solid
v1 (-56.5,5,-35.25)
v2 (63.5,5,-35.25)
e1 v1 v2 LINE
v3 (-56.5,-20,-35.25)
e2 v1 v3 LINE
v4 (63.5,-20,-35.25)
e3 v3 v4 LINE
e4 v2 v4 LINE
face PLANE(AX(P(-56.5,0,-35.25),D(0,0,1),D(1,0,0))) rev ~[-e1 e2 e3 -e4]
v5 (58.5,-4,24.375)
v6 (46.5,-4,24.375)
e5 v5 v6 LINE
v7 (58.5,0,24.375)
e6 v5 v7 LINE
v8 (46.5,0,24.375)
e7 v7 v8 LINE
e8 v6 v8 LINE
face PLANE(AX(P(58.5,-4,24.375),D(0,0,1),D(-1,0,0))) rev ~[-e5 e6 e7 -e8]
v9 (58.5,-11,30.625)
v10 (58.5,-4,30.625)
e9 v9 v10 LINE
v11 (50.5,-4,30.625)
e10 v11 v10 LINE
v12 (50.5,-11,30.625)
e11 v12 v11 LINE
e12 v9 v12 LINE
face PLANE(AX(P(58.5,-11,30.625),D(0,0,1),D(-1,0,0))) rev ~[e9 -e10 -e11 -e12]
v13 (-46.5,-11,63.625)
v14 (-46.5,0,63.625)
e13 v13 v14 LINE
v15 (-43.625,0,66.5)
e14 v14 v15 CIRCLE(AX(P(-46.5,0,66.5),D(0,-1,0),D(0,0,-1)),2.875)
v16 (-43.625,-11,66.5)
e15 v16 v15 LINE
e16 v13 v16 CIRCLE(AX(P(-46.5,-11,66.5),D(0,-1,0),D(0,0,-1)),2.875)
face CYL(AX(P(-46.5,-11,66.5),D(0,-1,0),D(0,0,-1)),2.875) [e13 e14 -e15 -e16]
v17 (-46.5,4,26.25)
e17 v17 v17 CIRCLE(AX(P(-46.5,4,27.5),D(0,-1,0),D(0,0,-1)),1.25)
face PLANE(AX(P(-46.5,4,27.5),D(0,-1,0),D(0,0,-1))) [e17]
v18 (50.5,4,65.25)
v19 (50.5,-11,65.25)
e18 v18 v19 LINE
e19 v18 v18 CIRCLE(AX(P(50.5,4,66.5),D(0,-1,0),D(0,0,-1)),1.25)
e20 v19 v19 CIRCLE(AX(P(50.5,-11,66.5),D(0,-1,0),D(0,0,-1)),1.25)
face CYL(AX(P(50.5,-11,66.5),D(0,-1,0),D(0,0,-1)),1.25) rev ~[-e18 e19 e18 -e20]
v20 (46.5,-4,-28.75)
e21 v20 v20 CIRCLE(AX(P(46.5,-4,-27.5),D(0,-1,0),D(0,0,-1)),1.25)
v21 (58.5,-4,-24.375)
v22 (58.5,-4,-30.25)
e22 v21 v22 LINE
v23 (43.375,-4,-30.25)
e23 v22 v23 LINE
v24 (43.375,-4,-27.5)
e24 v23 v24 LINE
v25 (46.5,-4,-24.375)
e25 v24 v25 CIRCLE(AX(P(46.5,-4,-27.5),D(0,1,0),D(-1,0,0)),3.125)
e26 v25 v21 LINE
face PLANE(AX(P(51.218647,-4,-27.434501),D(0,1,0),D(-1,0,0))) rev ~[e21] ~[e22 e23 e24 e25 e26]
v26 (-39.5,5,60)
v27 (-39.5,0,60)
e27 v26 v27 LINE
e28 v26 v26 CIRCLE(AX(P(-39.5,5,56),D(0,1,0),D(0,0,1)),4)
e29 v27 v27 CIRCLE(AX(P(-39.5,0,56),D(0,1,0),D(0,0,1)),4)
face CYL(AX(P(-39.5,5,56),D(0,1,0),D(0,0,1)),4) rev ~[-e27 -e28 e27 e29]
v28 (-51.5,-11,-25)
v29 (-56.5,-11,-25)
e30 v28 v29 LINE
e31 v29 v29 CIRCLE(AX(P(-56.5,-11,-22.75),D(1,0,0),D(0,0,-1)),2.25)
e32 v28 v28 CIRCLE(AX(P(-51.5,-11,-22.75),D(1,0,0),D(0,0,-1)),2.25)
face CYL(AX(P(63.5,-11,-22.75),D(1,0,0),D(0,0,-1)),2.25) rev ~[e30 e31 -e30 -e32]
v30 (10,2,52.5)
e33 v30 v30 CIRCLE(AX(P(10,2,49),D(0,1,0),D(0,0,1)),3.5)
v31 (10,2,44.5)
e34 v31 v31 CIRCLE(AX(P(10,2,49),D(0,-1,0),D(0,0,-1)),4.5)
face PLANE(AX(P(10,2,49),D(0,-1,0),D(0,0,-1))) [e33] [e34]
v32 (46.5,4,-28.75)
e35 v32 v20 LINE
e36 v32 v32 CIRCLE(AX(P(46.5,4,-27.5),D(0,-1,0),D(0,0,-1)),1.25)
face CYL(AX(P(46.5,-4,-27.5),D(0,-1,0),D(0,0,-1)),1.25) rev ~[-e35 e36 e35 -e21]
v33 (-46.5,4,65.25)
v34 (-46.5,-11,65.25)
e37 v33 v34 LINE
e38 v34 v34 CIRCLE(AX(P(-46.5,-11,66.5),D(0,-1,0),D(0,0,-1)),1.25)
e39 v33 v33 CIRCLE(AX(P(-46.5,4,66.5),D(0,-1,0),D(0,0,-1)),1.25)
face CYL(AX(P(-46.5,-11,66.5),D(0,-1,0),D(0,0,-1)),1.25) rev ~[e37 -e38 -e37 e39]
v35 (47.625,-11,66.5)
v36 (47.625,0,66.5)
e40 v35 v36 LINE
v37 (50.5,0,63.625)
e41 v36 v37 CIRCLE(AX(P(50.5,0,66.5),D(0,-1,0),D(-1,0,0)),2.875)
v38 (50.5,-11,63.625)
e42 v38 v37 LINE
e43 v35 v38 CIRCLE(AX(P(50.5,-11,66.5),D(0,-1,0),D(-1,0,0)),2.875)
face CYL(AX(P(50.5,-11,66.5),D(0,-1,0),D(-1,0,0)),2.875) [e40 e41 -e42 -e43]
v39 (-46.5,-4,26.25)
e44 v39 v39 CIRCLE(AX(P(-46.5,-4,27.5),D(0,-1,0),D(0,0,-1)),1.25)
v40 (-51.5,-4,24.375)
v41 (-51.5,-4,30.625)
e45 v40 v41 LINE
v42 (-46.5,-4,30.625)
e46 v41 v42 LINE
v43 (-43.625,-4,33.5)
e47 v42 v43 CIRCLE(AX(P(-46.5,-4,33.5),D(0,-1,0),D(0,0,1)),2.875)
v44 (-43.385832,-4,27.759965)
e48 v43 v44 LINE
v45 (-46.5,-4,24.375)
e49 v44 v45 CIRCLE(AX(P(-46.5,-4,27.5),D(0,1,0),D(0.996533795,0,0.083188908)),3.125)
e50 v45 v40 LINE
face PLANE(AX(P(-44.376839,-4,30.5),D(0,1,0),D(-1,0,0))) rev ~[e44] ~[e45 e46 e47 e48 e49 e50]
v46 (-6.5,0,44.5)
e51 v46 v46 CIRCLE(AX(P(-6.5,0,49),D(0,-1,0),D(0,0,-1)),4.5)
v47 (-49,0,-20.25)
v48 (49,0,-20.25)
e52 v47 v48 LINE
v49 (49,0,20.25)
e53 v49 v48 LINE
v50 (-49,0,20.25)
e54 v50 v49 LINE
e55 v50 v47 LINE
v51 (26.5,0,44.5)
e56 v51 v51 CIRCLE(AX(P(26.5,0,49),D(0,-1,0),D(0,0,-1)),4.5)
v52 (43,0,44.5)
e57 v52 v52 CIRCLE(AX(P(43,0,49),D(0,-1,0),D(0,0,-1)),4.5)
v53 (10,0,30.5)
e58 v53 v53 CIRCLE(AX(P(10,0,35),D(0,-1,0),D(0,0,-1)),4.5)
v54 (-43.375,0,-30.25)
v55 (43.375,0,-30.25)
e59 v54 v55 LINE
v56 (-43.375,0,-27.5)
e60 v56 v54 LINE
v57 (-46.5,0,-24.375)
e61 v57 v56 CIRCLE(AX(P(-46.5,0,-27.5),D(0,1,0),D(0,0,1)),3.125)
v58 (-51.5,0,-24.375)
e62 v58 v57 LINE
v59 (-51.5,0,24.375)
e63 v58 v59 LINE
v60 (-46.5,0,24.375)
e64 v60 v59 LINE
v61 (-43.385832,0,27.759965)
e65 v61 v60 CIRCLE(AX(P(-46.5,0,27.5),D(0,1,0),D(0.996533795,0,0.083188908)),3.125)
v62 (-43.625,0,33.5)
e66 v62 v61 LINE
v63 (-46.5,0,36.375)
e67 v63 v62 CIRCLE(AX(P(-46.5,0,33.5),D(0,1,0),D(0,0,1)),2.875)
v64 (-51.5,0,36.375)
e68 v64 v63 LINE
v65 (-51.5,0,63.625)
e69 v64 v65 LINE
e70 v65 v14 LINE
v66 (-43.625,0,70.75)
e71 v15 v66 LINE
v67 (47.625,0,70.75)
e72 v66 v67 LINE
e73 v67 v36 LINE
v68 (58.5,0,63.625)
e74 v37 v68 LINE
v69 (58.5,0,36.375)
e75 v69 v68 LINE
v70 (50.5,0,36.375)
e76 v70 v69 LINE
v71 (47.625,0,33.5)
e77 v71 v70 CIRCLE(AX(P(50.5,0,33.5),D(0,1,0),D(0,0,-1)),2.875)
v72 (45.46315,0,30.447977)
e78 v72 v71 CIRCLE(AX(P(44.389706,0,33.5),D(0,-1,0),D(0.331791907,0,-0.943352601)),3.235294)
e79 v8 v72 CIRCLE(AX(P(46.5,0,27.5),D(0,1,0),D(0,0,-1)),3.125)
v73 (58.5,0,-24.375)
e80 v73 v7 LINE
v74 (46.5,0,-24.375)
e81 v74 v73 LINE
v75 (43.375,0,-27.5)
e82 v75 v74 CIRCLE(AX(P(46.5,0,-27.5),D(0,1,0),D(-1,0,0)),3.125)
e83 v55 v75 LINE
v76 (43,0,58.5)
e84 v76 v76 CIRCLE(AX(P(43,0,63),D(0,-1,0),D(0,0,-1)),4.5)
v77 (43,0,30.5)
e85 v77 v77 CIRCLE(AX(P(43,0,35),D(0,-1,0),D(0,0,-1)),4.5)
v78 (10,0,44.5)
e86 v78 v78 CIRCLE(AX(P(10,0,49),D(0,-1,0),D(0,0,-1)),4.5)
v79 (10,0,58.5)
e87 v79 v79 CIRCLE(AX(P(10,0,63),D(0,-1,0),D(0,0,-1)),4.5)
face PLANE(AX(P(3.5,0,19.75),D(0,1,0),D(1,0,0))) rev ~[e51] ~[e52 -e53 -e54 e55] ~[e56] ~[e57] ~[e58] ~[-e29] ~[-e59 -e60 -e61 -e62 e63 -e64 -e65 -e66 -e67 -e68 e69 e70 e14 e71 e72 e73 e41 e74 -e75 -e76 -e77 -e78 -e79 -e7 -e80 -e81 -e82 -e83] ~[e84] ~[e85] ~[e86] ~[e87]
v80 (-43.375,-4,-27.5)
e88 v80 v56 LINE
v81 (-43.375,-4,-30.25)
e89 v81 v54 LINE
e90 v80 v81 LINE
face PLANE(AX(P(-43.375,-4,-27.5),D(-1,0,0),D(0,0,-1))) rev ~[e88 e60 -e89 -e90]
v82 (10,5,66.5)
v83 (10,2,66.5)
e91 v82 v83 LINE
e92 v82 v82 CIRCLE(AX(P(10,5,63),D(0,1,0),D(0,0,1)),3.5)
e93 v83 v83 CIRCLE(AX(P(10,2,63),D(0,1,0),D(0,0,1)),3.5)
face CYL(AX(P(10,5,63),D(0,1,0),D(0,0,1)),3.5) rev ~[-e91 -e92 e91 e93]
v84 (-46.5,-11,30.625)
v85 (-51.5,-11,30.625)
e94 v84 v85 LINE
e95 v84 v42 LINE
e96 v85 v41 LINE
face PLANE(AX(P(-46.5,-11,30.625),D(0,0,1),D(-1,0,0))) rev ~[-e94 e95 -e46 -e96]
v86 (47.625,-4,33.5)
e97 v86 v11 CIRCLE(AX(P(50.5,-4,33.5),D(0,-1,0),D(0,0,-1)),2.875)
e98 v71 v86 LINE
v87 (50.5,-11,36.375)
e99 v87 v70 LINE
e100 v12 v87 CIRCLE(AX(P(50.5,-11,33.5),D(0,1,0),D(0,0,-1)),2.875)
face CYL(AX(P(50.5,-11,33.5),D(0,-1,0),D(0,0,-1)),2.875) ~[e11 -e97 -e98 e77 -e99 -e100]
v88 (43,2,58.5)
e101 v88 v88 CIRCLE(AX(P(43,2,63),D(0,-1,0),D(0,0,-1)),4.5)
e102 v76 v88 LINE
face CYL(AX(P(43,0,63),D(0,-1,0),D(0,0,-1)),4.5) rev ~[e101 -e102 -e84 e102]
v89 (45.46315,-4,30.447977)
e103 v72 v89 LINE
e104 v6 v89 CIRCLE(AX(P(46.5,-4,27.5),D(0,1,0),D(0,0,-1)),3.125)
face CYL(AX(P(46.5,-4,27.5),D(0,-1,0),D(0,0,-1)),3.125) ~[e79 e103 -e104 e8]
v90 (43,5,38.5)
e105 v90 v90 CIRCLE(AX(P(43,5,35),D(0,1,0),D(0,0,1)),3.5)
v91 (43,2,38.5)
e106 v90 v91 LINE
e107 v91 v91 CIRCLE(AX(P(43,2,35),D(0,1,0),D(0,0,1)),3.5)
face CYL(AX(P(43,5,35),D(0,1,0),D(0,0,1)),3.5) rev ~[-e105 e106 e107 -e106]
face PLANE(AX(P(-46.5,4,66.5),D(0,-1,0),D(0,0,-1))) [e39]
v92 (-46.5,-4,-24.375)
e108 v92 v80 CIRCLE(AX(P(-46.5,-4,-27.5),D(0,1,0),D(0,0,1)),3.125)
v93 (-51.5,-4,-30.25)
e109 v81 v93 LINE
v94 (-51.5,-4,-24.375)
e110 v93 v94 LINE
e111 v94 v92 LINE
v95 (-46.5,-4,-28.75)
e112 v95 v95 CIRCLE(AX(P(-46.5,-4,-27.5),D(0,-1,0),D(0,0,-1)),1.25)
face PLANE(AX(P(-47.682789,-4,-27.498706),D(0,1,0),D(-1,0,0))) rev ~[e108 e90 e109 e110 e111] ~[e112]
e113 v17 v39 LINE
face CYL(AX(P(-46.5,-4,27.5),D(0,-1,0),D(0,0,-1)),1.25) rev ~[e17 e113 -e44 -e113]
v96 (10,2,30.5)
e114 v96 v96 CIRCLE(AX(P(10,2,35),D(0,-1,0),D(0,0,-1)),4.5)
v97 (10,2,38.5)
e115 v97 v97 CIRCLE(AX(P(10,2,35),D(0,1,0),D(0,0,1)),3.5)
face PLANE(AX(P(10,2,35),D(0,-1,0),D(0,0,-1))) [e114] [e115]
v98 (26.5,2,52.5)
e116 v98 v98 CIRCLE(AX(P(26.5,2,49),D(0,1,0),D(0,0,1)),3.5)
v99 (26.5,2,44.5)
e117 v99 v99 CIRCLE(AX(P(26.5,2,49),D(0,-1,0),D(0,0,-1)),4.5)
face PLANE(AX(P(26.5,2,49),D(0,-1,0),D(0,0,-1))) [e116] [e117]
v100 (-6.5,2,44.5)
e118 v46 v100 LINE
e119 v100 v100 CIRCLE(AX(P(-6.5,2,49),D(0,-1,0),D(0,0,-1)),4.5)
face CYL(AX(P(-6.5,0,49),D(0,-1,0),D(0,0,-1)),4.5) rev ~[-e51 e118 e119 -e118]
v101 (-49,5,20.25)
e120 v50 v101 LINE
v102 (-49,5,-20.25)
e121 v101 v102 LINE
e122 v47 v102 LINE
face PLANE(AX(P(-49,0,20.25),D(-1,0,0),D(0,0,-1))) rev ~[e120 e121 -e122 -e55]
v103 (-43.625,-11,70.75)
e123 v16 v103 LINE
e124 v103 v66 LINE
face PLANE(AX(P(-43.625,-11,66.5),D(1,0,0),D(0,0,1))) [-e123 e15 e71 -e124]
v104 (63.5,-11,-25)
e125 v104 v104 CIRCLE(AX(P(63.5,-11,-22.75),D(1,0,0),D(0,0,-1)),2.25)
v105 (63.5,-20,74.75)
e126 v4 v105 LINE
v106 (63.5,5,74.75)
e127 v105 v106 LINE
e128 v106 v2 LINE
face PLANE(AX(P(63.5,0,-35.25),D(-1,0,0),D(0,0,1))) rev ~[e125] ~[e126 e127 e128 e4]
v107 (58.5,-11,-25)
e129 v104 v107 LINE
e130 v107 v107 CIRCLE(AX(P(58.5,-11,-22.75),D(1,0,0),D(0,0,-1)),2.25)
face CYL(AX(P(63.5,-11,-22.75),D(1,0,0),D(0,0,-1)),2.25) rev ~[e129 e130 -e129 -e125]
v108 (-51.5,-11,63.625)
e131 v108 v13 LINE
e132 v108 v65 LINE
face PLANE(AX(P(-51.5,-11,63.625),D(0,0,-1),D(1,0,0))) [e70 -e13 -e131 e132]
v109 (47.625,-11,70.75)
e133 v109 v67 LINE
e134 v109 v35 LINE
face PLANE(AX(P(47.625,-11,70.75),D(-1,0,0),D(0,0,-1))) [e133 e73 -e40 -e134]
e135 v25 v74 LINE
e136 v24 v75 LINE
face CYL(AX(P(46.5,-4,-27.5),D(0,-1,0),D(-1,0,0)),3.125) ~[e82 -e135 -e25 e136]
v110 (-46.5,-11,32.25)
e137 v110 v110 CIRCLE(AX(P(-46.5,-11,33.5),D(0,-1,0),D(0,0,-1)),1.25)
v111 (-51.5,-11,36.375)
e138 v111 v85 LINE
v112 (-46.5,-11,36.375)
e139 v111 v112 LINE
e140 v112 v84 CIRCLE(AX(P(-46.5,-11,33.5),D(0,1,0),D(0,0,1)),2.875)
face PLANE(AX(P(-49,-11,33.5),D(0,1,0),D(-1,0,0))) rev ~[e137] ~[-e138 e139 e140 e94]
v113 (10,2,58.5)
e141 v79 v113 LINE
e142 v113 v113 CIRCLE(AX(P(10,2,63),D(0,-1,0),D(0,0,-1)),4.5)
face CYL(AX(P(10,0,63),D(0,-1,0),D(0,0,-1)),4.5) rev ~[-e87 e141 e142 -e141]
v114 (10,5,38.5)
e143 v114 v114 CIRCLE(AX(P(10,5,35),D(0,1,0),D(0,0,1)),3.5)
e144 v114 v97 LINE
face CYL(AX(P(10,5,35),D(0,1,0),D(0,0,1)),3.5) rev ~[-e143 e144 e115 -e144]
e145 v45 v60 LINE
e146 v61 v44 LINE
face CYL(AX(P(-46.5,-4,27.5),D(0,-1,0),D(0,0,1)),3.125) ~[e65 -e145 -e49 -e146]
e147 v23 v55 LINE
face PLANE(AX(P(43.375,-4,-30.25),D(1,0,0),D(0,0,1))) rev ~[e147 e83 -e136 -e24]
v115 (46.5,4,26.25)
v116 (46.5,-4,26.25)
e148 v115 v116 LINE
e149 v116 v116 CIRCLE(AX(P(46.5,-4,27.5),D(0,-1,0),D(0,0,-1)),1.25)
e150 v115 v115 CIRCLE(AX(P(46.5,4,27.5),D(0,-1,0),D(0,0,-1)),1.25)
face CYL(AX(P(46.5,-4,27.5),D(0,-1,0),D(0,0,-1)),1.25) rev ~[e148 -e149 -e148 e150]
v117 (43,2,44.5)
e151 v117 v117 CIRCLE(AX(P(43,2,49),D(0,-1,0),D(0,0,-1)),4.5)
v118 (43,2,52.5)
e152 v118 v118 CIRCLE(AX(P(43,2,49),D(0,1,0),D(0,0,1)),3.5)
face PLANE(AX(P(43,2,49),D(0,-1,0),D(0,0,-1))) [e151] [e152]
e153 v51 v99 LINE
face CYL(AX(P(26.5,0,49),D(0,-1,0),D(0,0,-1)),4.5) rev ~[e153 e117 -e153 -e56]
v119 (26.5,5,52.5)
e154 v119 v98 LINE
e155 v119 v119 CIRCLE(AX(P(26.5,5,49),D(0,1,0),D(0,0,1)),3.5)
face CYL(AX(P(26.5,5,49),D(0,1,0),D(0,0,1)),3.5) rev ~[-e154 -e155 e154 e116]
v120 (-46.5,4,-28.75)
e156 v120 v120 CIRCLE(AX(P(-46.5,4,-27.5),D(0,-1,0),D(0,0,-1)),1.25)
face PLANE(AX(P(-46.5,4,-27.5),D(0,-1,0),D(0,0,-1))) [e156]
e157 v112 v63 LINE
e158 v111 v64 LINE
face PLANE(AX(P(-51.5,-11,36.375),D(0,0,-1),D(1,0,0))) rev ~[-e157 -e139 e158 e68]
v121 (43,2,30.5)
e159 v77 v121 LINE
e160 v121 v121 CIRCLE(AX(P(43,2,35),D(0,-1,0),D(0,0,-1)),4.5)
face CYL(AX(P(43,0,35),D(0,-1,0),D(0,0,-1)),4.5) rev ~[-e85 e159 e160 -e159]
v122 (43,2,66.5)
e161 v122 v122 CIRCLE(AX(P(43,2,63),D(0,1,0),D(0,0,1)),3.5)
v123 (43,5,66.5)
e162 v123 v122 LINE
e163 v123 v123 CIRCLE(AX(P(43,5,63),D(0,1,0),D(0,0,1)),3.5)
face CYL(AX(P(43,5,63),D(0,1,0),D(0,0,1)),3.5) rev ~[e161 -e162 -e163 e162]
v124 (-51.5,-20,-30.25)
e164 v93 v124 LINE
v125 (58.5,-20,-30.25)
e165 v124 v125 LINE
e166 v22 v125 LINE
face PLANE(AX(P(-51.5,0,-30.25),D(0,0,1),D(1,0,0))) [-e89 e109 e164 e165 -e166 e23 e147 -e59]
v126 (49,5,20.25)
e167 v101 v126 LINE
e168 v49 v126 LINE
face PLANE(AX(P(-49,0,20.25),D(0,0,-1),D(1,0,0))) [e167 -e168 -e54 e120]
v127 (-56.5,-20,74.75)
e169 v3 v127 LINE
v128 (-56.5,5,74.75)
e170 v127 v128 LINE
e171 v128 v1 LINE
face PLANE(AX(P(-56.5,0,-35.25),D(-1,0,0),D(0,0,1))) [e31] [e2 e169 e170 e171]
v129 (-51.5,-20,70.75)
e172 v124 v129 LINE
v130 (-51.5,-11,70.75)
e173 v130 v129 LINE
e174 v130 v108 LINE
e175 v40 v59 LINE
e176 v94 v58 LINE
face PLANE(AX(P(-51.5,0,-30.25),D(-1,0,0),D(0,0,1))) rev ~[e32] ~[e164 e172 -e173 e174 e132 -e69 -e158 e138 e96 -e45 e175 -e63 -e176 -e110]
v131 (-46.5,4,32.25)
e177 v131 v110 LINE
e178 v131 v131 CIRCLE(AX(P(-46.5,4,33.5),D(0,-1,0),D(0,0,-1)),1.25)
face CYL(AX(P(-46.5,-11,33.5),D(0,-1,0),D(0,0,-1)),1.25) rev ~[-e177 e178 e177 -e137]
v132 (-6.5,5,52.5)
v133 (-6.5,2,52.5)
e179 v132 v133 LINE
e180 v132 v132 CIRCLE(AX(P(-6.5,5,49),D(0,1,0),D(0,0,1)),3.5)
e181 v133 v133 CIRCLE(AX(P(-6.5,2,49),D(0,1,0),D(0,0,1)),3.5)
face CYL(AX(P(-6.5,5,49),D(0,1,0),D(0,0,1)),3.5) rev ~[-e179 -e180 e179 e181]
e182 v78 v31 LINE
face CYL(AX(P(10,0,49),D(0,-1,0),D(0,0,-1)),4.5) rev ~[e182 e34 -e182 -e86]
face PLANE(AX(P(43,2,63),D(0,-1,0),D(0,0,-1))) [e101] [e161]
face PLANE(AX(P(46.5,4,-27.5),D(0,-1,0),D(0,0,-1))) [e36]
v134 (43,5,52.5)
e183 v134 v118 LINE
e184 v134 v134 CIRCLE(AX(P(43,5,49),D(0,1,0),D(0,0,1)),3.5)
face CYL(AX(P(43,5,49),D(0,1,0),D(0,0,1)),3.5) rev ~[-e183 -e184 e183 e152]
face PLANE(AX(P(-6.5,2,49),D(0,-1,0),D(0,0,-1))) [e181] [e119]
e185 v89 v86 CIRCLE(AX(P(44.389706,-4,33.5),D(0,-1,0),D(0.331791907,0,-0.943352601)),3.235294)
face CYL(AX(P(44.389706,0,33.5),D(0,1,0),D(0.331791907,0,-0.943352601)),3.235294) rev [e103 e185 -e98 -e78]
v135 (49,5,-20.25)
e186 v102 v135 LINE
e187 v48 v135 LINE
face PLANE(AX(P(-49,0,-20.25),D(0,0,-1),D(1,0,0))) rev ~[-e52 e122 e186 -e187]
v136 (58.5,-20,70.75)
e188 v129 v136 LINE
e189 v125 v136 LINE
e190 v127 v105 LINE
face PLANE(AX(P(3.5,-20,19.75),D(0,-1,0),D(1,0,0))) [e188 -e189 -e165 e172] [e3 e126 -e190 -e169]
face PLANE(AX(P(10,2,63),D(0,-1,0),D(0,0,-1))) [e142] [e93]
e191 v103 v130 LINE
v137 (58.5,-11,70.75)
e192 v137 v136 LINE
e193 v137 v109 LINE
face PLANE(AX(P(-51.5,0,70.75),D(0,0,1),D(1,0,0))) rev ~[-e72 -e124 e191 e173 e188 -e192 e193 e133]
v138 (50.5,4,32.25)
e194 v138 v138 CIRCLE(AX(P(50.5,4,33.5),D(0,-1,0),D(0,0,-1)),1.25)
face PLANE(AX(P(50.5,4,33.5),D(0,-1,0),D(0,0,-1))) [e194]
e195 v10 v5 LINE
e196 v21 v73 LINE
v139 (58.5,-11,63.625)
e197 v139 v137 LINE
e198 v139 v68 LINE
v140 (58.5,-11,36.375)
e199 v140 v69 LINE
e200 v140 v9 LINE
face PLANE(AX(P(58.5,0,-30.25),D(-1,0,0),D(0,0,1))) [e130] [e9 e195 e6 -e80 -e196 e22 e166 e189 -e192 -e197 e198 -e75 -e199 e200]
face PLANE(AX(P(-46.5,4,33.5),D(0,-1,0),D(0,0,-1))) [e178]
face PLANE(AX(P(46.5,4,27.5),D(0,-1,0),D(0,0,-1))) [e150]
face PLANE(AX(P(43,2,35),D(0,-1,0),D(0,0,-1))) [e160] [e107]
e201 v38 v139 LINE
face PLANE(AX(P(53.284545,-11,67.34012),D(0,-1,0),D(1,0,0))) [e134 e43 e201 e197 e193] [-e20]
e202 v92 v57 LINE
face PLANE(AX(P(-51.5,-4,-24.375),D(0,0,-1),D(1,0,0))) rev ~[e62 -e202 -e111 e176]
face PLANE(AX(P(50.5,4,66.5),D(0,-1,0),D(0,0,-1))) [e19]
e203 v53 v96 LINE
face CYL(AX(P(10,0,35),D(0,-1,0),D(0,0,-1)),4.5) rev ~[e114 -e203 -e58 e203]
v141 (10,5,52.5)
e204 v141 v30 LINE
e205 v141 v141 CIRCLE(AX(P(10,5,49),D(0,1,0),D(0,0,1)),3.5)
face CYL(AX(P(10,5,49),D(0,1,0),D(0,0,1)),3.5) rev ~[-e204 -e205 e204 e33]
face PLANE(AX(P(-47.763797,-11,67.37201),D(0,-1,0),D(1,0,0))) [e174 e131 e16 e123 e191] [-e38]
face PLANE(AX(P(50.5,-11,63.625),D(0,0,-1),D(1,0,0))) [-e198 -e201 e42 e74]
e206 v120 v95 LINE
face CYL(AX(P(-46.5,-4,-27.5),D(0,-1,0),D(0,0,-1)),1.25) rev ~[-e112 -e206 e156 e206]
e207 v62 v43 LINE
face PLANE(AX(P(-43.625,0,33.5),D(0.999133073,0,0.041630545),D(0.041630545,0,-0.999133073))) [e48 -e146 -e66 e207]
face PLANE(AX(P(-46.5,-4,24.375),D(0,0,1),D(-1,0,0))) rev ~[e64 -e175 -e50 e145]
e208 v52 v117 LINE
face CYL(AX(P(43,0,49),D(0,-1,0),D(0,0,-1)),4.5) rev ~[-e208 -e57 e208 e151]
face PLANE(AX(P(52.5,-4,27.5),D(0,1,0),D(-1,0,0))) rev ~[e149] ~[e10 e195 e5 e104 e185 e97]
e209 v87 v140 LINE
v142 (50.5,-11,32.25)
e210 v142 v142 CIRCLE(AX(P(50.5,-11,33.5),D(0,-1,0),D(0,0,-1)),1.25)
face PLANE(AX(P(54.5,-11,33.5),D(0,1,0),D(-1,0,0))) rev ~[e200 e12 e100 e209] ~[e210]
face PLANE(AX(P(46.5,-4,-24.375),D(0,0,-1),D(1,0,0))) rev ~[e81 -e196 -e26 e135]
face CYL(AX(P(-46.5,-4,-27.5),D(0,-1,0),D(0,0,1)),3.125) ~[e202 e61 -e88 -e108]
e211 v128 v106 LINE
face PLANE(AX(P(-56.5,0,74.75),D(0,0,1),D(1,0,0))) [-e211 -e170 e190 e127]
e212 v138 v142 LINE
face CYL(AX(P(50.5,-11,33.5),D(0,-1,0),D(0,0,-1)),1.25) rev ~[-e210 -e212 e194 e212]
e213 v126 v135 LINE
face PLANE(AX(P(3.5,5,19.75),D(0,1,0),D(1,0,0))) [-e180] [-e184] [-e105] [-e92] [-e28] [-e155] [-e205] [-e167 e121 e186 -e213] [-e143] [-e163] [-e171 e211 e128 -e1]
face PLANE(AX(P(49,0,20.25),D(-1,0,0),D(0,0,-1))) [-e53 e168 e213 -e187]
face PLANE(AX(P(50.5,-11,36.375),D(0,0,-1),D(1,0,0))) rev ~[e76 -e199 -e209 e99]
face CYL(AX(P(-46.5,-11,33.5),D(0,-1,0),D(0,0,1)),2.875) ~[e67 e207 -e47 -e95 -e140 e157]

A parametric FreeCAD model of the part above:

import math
import FreeCAD as App
import Part
import Sketcher

V = App.Vector


def add_polygon(sketch, points):
    """Adds a closed chain of lines whose ends are joined by coincident constraints."""
    first, n = sketch.GeometryCount, len(points)
    for a, b in zip(points, points[1:] + points[:1]):
        sketch.addGeometry(Part.LineSegment(App.Vector(*a, 0), App.Vector(*b, 0)), False)
    for i in range(n):
        sketch.addConstraint(Sketcher.Constraint("Coincident", first + i, 2, first + (i + 1) % n, 1))

doc = App.newDocument("Part")
params = doc.addObject("Spreadsheet::Sheet", "Params")
for row, (alias, value) in enumerate([
    ("sketch1_width", "120 mm"),
    ("sketch1_width2", "98 mm"),
    ("sketch1_height", "110 mm"),
    ("sketch1_height2", "40.5 mm"),
    ("pad1_length", "5 mm"),
    ("sketch2_diameter", "2.5 mm"),
    ("pocket1_length", "4 mm"),
    ("sketch3_diameter", "7 mm"),
    ("sketch4_diameter", "8 mm"),
    ("sketch5_diameter", "9 mm"),
    ("pocket4_length", "2 mm"),
    ("sketch6_width", "120 mm"),
    ("sketch6_width2", "110 mm"),
    ("sketch6_height", "101 mm"),
    ("pad2_length", "20 mm"),
    ("sketch7_diameter", "4.5 mm"),
    ("sketch8_diameter", "2.5 mm"),
    ("sketch8_width", "5 mm"),
    ("sketch8_width2", "12 mm"),
    ("sketch8_height", "2.75 mm"),
    ("pad3_length", "4 mm"),
    ("sketch9_diameter", "2.5 mm"),
    ("sketch9_width", "5 mm"),
    ("sketch9_width2", "8 mm"),
    ("sketch9_height", "4.25 mm"),
    ("pad4_length", "11 mm"),
    ("pad5_length", "4 mm"),
], start=1):
    params.set(f"A{row}", alias)
    params.set(f"B{row}", "=" + value)
    params.setAlias(f"B{row}", alias)

body = doc.addObject("PartDesign::Body", "Body")

sketch1 = body.newObject("Sketcher::SketchObject", "Sketch")
sketch1.AttachmentSupport = (doc.getObject("XZ_Plane"), [""])
sketch1.MapMode = "FlatFace"
add_polygon(sketch1, [(-56.5, -35.25), (-56.5, 74.75), (63.5, 74.75), (63.5, -35.25)])
add_polygon(sketch1, [(49, 20.25), (-49, 20.25), (-49, -20.25), (49, -20.25)])
sketch1.addConstraint(Sketcher.Constraint("Vertical", 0))
sketch1.addConstraint(Sketcher.Constraint("Horizontal", 1))
sketch1.addConstraint(Sketcher.Constraint("Vertical", 2))
sketch1.addConstraint(Sketcher.Constraint("Horizontal", 3))
sketch1.addConstraint(Sketcher.Constraint("Horizontal", 4))
sketch1.addConstraint(Sketcher.Constraint("Vertical", 5))
sketch1.addConstraint(Sketcher.Constraint("Horizontal", 6))
sketch1.addConstraint(Sketcher.Constraint("Vertical", 7))
sketch1.addConstraint(Sketcher.Constraint("Symmetric", 4, 2, 6, 2, -1, 1))
sketch1.addConstraint(Sketcher.Constraint("DistanceX", 1, 1, 1, 2, 120.0))
sketch1.addConstraint(Sketcher.Constraint("DistanceX", 4, 2, 4, 1, 98.0))
sketch1.addConstraint(Sketcher.Constraint("DistanceY", 0, 1, 0, 2, 110.0))
sketch1.addConstraint(Sketcher.Constraint("DistanceY", 5, 2, 5, 1, 40.5))
sketch1.addConstraint(Sketcher.Constraint("DistanceY", 3, 2, 5, 2, 15.0))
sketch1.addConstraint(Sketcher.Constraint("DistanceX", 0, 2, -1, 1, 56.5))
sketch1.setExpression("Constraints[17]", "Params.sketch1_width")
sketch1.setExpression("Constraints[18]", "Params.sketch1_width2")
sketch1.setExpression("Constraints[19]", "Params.sketch1_height")
sketch1.setExpression("Constraints[20]", "Params.sketch1_height2")
pad1 = body.newObject("PartDesign::Pad", "Pad")
pad1.Profile = sketch1
pad1.setExpression("Length", "Params.pad1_length")
pad1.Reversed = True

sketch2 = body.newObject("Sketcher::SketchObject", "Sketch001")
sketch2.AttachmentSupport = (doc.getObject("XZ_Plane"), [""])
sketch2.MapMode = "FlatFace"
sketch2.addGeometry(Part.Circle(V(-46.5, 27.5, 0), V(0, 0, 1), 1.25), False)
sketch2.addGeometry(Part.Circle(V(46.5, 27.5, 0), V(0, 0, 1), 1.25), False)
sketch2.addGeometry(Part.Circle(V(46.5, -27.5, 0), V(0, 0, 1), 1.25), False)
sketch2.addGeometry(Part.Circle(V(-46.5, -27.5, 0), V(0, 0, 1), 1.25), False)
sketch2.addGeometry(Part.Circle(V(-46.5, 33.5, 0), V(0, 0, 1), 1.25), False)
sketch2.addGeometry(Part.Circle(V(50.5, 33.5, 0), V(0, 0, 1), 1.25), False)
sketch2.addGeometry(Part.Circle(V(50.5, 66.5, 0), V(0, 0, 1), 1.25), False)
sketch2.addGeometry(Part.Circle(V(-46.5, 66.5, 0), V(0, 0, 1), 1.25), False)
sketch2.addConstraint(Sketcher.Constraint("Equal", 0, 1))
sketch2.addConstraint(Sketcher.Constraint("Equal", 1, 2))
sketch2.addConstraint(Sketcher.Constraint("Equal", 2, 3))
sketch2.addConstraint(Sketcher.Constraint("Equal", 3, 4))
sketch2.addConstraint(Sketcher.Constraint("Equal", 4, 5))
sketch2.addConstraint(Sketcher.Constraint("Equal", 5, 6))
sketch2.addConstraint(Sketcher.Constraint("Equal", 6, 7))
sketch2.addConstraint(Sketcher.Constraint("Symmetric", 0, 3, 2, 3, -1, 1))
sketch2.addConstraint(Sketcher.Constraint("Symmetric", 1, 3, 3, 3, -1, 1))
sketch2.addConstraint(Sketcher.Constraint("Symmetric", 0, 3, 1, 3, -2))
sketch2.addConstraint(Sketcher.Constraint("Horizontal", 4, 3, 5, 3))
sketch2.addConstraint(Sketcher.Constraint("Horizontal", 6, 3, 7, 3))
sketch2.addConstraint(Sketcher.Constraint("Vertical", 3, 3, 4, 3))
sketch2.addConstraint(Sketcher.Constraint("Vertical", 5, 3, 6, 3))
sketch2.addConstraint(Sketcher.Constraint("Vertical", 4, 3, 7, 3))
sketch2.addConstraint(Sketcher.Constraint("Diameter", 0, 2.5))
sketch2.addConstraint(Sketcher.Constraint("DistanceX", 0, 3, 1, 3, 93.0))
sketch2.addConstraint(Sketcher.Constraint("DistanceY", 2, 3, 1, 3, 55.0))
sketch2.addConstraint(Sketcher.Constraint("DistanceY", 0, 3, 4, 3, 6.0))
sketch2.addConstraint(Sketcher.Constraint("DistanceX", 1, 3, 5, 3, 4.0))
sketch2.addConstraint(Sketcher.Constraint("DistanceY", 5, 3, 6, 3, 33.0))
sketch2.setExpression("Constraints[15]", "Params.sketch2_diameter")
pocket1 = body.newObject("PartDesign::Pocket", "Pocket")
pocket1.Profile = sketch2
pocket1.setExpression("Length", "Params.pocket1_length")

sketch3 = body.newObject("Sketcher::SketchObject", "Sketch002")
sketch3.AttachmentSupport = (doc.getObject("XZ_Plane"), [""])
sketch3.MapMode = "FlatFace"
sketch3.AttachmentOffset = App.Placement(V(0, 0, -5), App.Rotation())
sketch3.addGeometry(Part.Circle(V(43, 35, 0), V(0, 0, 1), 3.5), False)
sketch3.addGeometry(Part.Circle(V(43, 49, 0), V(0, 0, 1), 3.5), False)
sketch3.addGeometry(Part.Circle(V(43, 63, 0), V(0, 0, 1), 3.5), False)
sketch3.addGeometry(Part.Circle(V(26.5, 49, 0), V(0, 0, 1), 3.5), False)
sketch3.addGeometry(Part.Circle(V(10, 49, 0), V(0, 0, 1), 3.5), False)
sketch3.addGeometry(Part.Circle(V(10, 35, 0), V(0, 0, 1), 3.5), False)
sketch3.addGeometry(Part.Circle(V(10, 63, 0), V(0, 0, 1), 3.5), False)
sketch3.addGeometry(Part.Circle(V(-6.5, 49, 0), V(0, 0, 1), 3.5), False)
sketch3.addConstraint(Sketcher.Constraint("Equal", 0, 1))
sketch3.addConstraint(Sketcher.Constraint("Equal", 1, 2))
sketch3.addConstraint(Sketcher.Constraint("Equal", 2, 3))
sketch3.addConstraint(Sketcher.Constraint("Equal", 3, 4))
sketch3.addConstraint(Sketcher.Constraint("Equal", 4, 5))
sketch3.addConstraint(Sketcher.Constraint("Equal", 5, 6))
sketch3.addConstraint(Sketcher.Constraint("Equal", 6, 7))
sketch3.addConstraint(Sketcher.Constraint("Horizontal", 1, 3, 3, 3))
sketch3.addConstraint(Sketcher.Constraint("Horizontal", 3, 3, 4, 3))
sketch3.addConstraint(Sketcher.Constraint("Horizontal", 0, 3, 5, 3))
sketch3.addConstraint(Sketcher.Constraint("Horizontal", 2, 3, 6, 3))
sketch3.addConstraint(Sketcher.Constraint("Horizontal", 4, 3, 7, 3))
sketch3.addConstraint(Sketcher.Constraint("Vertical", 0, 3, 1, 3))
sketch3.addConstraint(Sketcher.Constraint("Vertical", 1, 3, 2, 3))
sketch3.addConstraint(Sketcher.Constraint("Vertical", 4, 3, 5, 3))
sketch3.addConstraint(Sketcher.Constraint("Vertical", 5, 3, 6, 3))
sketch3.addConstraint(Sketcher.Constraint("Diameter", 0, 7.0))
sketch3.addConstraint(Sketcher.Constraint("DistanceX", -1, 1, 0, 3, 43.0))
sketch3.addConstraint(Sketcher.Constraint("DistanceY", -1, 1, 0, 3, 35.0))
sketch3.addConstraint(Sketcher.Constraint("DistanceY", -1, 1, 1, 3, 49.0))
sketch3.addConstraint(Sketcher.Constraint("DistanceY", -1, 1, 2, 3, 63.0))
sketch3.addConstraint(Sketcher.Constraint("DistanceX", -1, 1, 4, 3, 10.0))
sketch3.addConstraint(Sketcher.Constraint("DistanceX", 7, 3, 3, 3, 33.0))
sketch3.addConstraint(Sketcher.Constraint("DistanceX", -1, 1, 3, 3, 26.5))
sketch3.setExpression("Constraints[16]", "Params.sketch3_diameter")
pocket2 = body.newObject("PartDesign::Pocket", "Pocket001")
pocket2.Profile = sketch3
pocket2.Type = "ThroughAll"
pocket2.Reversed = True

sketch4 = body.newObject("Sketcher::SketchObject", "Sketch003")
sketch4.AttachmentSupport = (doc.getObject("XZ_Plane"), [""])
sketch4.MapMode = "FlatFace"
sketch4.AttachmentOffset = App.Placement(V(0, 0, -5), App.Rotation())
sketch4.addGeometry(Part.Circle(V(-39.5, 56, 0), V(0, 0, 1), 4), False)
sketch4.addConstraint(Sketcher.Constraint("Diameter", 0, 8.0))
sketch4.addConstraint(Sketcher.Constraint("DistanceY", -1, 1, 0, 3, 56.0))
sketch4.addConstraint(Sketcher.Constraint("DistanceX", 0, 3, -1, 1, 39.5))
sketch4.setExpression("Constraints[0]", "Params.sketch4_diameter")
pocket3 = body.newObject("PartDesign::Pocket", "Pocket002")
pocket3.Profile = sketch4
pocket3.Type = "ThroughAll"
pocket3.Reversed = True

sketch5 = body.newObject("Sketcher::SketchObject", "Sketch004")
sketch5.AttachmentSupport = (doc.getObject("XZ_Plane"), [""])
sketch5.MapMode = "FlatFace"
sketch5.addGeometry(Part.Circle(V(43, 63, 0), V(0, 0, 1), 4.5), False)
sketch5.addGeometry(Part.Circle(V(43, 49, 0), V(0, 0, 1), 4.5), False)
sketch5.addGeometry(Part.Circle(V(43, 35, 0), V(0, 0, 1), 4.5), False)
sketch5.addGeometry(Part.Circle(V(26.5, 49, 0), V(0, 0, 1), 4.5), False)
sketch5.addGeometry(Part.Circle(V(10, 49, 0), V(0, 0, 1), 4.5), False)
sketch5.addGeometry(Part.Circle(V(10, 35, 0), V(0, 0, 1), 4.5), False)
sketch5.addGeometry(Part.Circle(V(-6.5, 49, 0), V(0, 0, 1), 4.5), False)
sketch5.addGeometry(Part.Circle(V(10, 63, 0), V(0, 0, 1), 4.5), False)
sketch5.addConstraint(Sketcher.Constraint("Equal", 0, 1))
sketch5.addConstraint(Sketcher.Constraint("Equal", 1, 2))
sketch5.addConstraint(Sketcher.Constraint("Equal", 2, 3))
sketch5.addConstraint(Sketcher.Constraint("Equal", 3, 4))
sketch5.addConstraint(Sketcher.Constraint("Equal", 4, 5))
sketch5.addConstraint(Sketcher.Constraint("Equal", 5, 6))
sketch5.addConstraint(Sketcher.Constraint("Equal", 6, 7))
sketch5.addConstraint(Sketcher.Constraint("Horizontal", 1, 3, 3, 3))
sketch5.addConstraint(Sketcher.Constraint("Horizontal", 3, 3, 4, 3))
sketch5.addConstraint(Sketcher.Constraint("Horizontal", 2, 3, 5, 3))
sketch5.addConstraint(Sketcher.Constraint("Horizontal", 4, 3, 6, 3))
sketch5.addConstraint(Sketcher.Constraint("Horizontal", 0, 3, 7, 3))
sketch5.addConstraint(Sketcher.Constraint("Vertical", 0, 3, 1, 3))
sketch5.addConstraint(Sketcher.Constraint("Vertical", 1, 3, 2, 3))
sketch5.addConstraint(Sketcher.Constraint("Vertical", 4, 3, 5, 3))
sketch5.addConstraint(Sketcher.Constraint("Vertical", 5, 3, 7, 3))
sketch5.addConstraint(Sketcher.Constraint("Diameter", 0, 9.0))
sketch5.addConstraint(Sketcher.Constraint("DistanceX", -1, 1, 0, 3, 43.0))
sketch5.addConstraint(Sketcher.Constraint("DistanceY", -1, 1, 0, 3, 63.0))
sketch5.addConstraint(Sketcher.Constraint("DistanceY", -1, 1, 1, 3, 49.0))
sketch5.addConstraint(Sketcher.Constraint("DistanceY", -1, 1, 2, 3, 35.0))
sketch5.addConstraint(Sketcher.Constraint("DistanceX", -1, 1, 4, 3, 10.0))
sketch5.addConstraint(Sketcher.Constraint("DistanceX", 6, 3, 3, 3, 33.0))
sketch5.addConstraint(Sketcher.Constraint("DistanceX", -1, 1, 3, 3, 26.5))
sketch5.setExpression("Constraints[16]", "Params.sketch5_diameter")
pocket4 = body.newObject("PartDesign::Pocket", "Pocket003")
pocket4.Profile = sketch5
pocket4.setExpression("Length", "Params.pocket4_length")

sketch6 = body.newObject("Sketcher::SketchObject", "Sketch005")
sketch6.AttachmentSupport = (doc.getObject("XZ_Plane"), [""])
sketch6.MapMode = "FlatFace"
add_polygon(sketch6, [(-56.5, 74.75), (-56.5, -35.25), (63.5, -35.25), (63.5, 74.75)])
add_polygon(sketch6, [(58.5, -30.25), (-51.5, -30.25), (-51.5, 70.75), (58.5, 70.75)])
sketch6.addConstraint(Sketcher.Constraint("Vertical", 0))
sketch6.addConstraint(Sketcher.Constraint("Horizontal", 1))
sketch6.addConstraint(Sketcher.Constraint("Vertical", 2))
sketch6.addConstraint(Sketcher.Constraint("Horizontal", 3))
sketch6.addConstraint(Sketcher.Constraint("Horizontal", 4))
sketch6.addConstraint(Sketcher.Constraint("Vertical", 5))
sketch6.addConstraint(Sketcher.Constraint("Horizontal", 6))
sketch6.addConstraint(Sketcher.Constraint("Vertical", 7))
sketch6.addConstraint(Sketcher.Constraint("Equal", 6, 0))
sketch6.addConstraint(Sketcher.Constraint("DistanceX", 1, 1, 1, 2, 120.0))
sketch6.addConstraint(Sketcher.Constraint("DistanceX", 4, 2, 4, 1, 110.0))
sketch6.addConstraint(Sketcher.Constraint("DistanceY", 5, 1, 5, 2, 101.0))
sketch6.addConstraint(Sketcher.Constraint("DistanceX", 0, 2, 4, 2, 5.0))
sketch6.addConstraint(Sketcher.Constraint("DistanceY", 0, 2, 4, 2, 5.0))
sketch6.addConstraint(Sketcher.Constraint("DistanceX", 0, 2, -1, 1, 56.5))
sketch6.addConstraint(Sketcher.Constraint("DistanceY", 0, 2, -1, 1, 35.25))
sketch6.setExpression("Constraints[17]", "Params.sketch6_width")
sketch6.setExpression("Constraints[18]", "Params.sketch6_width2")
sketch6.setExpression("Constraints[19]", "Params.sketch6_height")
pad2 = body.newObject("PartDesign::Pad", "Pad001")
pad2.Profile = sketch6
pad2.setExpression("Length", "Params.pad2_length")

sketch7 = body.newObject("Sketcher::SketchObject", "Sketch006")
sketch7.AttachmentSupport = (doc.getObject("YZ_Plane"), [""])
sketch7.MapMode = "FlatFace"
sketch7.AttachmentOffset = App.Placement(V(0, 0, 63.5), App.Rotation())
sketch7.addGeometry(Part.Circle(V(-11, -22.75, 0), V(0, 0, 1), 2.25), False)
sketch7.addConstraint(Sketcher.Constraint("Diameter", 0, 4.5))
sketch7.addConstraint(Sketcher.Constraint("DistanceX", 0, 3, -1, 1, 11.0))
sketch7.addConstraint(Sketcher.Constraint("DistanceY", 0, 3, -1, 1, 22.75))
sketch7.setExpression("Constraints[0]", "Params.sketch7_diameter")
pocket5 = body.newObject("PartDesign::Pocket", "Pocket004")
pocket5.Profile = sketch7
pocket5.Type = "ThroughAll"

sketch8 = body.newObject("Sketcher::SketchObject", "Sketch007")
sketch8.AttachmentSupport = (doc.getObject("XZ_Plane"), [""])
sketch8.MapMode = "FlatFace"
sketch8.AttachmentOffset = App.Placement(V(0, 0, 4), App.Rotation())
sketch8.addGeometry(Part.LineSegment(V(-46.5, 30.625, 0), V(-51.5, 30.625, 0)), False)
sketch8.addGeometry(Part.LineSegment(V(-51.5, 30.625, 0), V(-51.5, 24.375, 0)), False)
sketch8.addGeometry(Part.LineSegment(V(-51.5, 24.375, 0), V(-46.5, 24.375, 0)), False)
sketch8.addGeometry(Part.ArcOfCircle(Part.Circle(V(-46.5, 27.5, 0), V(0, 0, 1), 3.125), math.radians(-90), math.radians(90)), False)
sketch8.addGeometry(Part.Circle(V(-46.5, 27.5, 0), V(0, 0, 1), 1.25), False)
sketch8.addGeometry(Part.LineSegment(V(58.5, 30.625, 0), V(46.5, 30.625, 0)), False)
sketch8.addGeometry(Part.ArcOfCircle(Part.Circle(V(46.5, 27.5, 0), V(0, 0, 1), 3.125), math.radians(90), math.radians(270)), False)
sketch8.addGeometry(Part.LineSegment(V(46.5, 24.375, 0), V(58.5, 24.375, 0)), False)
sketch8.addGeometry(Part.ArcOfCircle(Part.Circle(V(58.5, 27.5, 0), V(0, 0, 1), 3.125), math.radians(-90), math.radians(90)), False)
sketch8.addGeometry(Part.Circle(V(46.5, 27.5, 0), V(0, 0, 1), 1.25), False)
sketch8.addGeometry(Part.LineSegment(V(-46.5, -24.375, 0), V(-51.5, -24.375, 0)), False)
sketch8.addGeometry(Part.LineSegment(V(-51.5, -24.375, 0), V(-51.5, -30.25, 0)), False)
sketch8.addGeometry(Part.LineSegment(V(-51.5, -30.25, 0), V(-43.375, -30.25, 0)), False)
sketch8.addGeometry(Part.LineSegment(V(-43.375, -30.25, 0), V(-43.375, -27.5, 0)), False)
sketch8.addGeometry(Part.ArcOfCircle(Part.Circle(V(-46.5, -27.5, 0), V(0, 0, 1), 3.125), math.radians(0), math.radians(90)), False)
sketch8.addGeometry(Part.Circle(V(-46.5, -27.5, 0), V(0, 0, 1), 1.25), False)
sketch8.addGeometry(Part.LineSegment(V(43.375, -27.5, 0), V(43.375, -30.25, 0)), False)
sketch8.addGeometry(Part.LineSegment(V(43.375, -30.25, 0), V(58.5, -30.25, 0)), False)
sketch8.addGeometry(Part.LineSegment(V(58.5, -30.25, 0), V(58.5, -24.375, 0)), False)
sketch8.addGeometry(Part.LineSegment(V(58.5, -24.375, 0), V(46.5, -24.375, 0)), False)
sketch8.addGeometry(Part.ArcOfCircle(Part.Circle(V(46.5, -27.5, 0), V(0, 0, 1), 3.125), math.radians(90), math.radians(180)), False)
sketch8.addGeometry(Part.Circle(V(46.5, -27.5, 0), V(0, 0, 1), 1.25), False)
sketch8.addConstraint(Sketcher.Constraint("Coincident", 0, 2, 1, 1))
sketch8.addConstraint(Sketcher.Constraint("Coincident", 1, 2, 2, 1))
sketch8.addConstraint(Sketcher.Constraint("Tangent", 2, 2, 3, 1))
sketch8.addConstraint(Sketcher.Constraint("Tangent", 3, 2, 0, 1))
sketch8.addConstraint(Sketcher.Constraint("Tangent", 5, 2, 6, 1))
sketch8.addConstraint(Sketcher.Constraint("Tangent", 6, 2, 7, 1))
sketch8.addConstraint(Sketcher.Constraint("Tangent", 7, 2, 8, 1))
sketch8.addConstraint(Sketcher.Constraint("Tangent", 8, 2, 5, 1))
sketch8.addConstraint(Sketcher.Constraint("Coincident", 10, 2, 11, 1))
sketch8.addConstraint(Sketcher.Constraint("Coincident", 11, 2, 12, 1))
sketch8.addConstraint(Sketcher.Constraint("Coincident", 12, 2, 13, 1))
sketch8.addConstraint(Sketcher.Constraint("Tangent", 13, 2, 14, 1))
sketch8.addConstraint(Sketcher.Constraint("Tangent", 14, 2, 10, 1))
sketch8.addConstraint(Sketcher.Constraint("Coincident", 16, 2, 17, 1))
sketch8.addConstraint(Sketcher.Constraint("Coincident", 17, 2, 18, 1))
sketch8.addConstraint(Sketcher.Constraint("Coincident", 18, 2, 19, 1))
sketch8.addConstraint(Sketcher.Constraint("Tangent", 19, 2, 20, 1))
sketch8.addConstraint(Sketcher.Constraint("Tangent", 20, 2, 16, 1))
sketch8.addConstraint(Sketcher.Constraint("Horizontal", 0))
sketch8.addConstraint(Sketcher.Constraint("Vertical", 1))
sketch8.addConstraint(Sketcher.Constraint("Horizontal", 2))
sketch8.addConstraint(Sketcher.Constraint("Horizontal", 5))
sketch8.addConstraint(Sketcher.Constraint("Horizontal", 7))
sketch8.addConstraint(Sketcher.Constraint("Horizontal", 10))
sketch8.addConstraint(Sketcher.Constraint("Vertical", 11))
sketch8.addConstraint(Sketcher.Constraint("Horizontal", 12))
sketch8.addConstraint(Sketcher.Constraint("Vertical", 13))
sketch8.addConstraint(Sketcher.Constraint("Vertical", 16))
sketch8.addConstraint(Sketcher.Constraint("Horizontal", 17))
sketch8.addConstraint(Sketcher.Constraint("Vertical", 18))
sketch8.addConstraint(Sketcher.Constraint("Horizontal", 19))
sketch8.addConstraint(Sketcher.Constraint("Coincident", 4, 3, 3, 3))
sketch8.addConstraint(Sketcher.Constraint("Coincident", 9, 3, 6, 3))
sketch8.addConstraint(Sketcher.Constraint("Coincident", 15, 3, 14, 3))
sketch8.addConstraint(Sketcher.Constraint("Coincident", 21, 3, 20, 3))
sketch8.addConstraint(Sketcher.Constraint("Equal", 3, 6))
sketch8.addConstraint(Sketcher.Constraint("Equal", 4, 9))
sketch8.addConstraint(Sketcher.Constraint("Equal", 8, 14))
sketch8.addConstraint(Sketcher.Constraint("Equal", 9, 15))
sketch8.addConstraint(Sketcher.Constraint("Equal", 14, 20))
sketch8.addConstraint(Sketcher.Constraint("Equal", 15, 21))
sketch8.addConstraint(Sketcher.Constraint("Symmetric", 6, 3, 14, 3, -1, 1))
sketch8.addConstraint(Sketcher.Constraint("Symmetric", 3, 3, 20, 3, -1, 1))
sketch8.addConstraint(Sketcher.Constraint("Symmetric", 3, 3, 6, 3, -2))
sketch8.addConstraint(Sketcher.Constraint("Horizontal", 12, 2, 16, 2))
sketch8.addConstraint(Sketcher.Constraint("Vertical", 1, 2, 10, 2))
sketch8.addConstraint(Sketcher.Constraint("Vertical", 8, 2, 17, 2))
sketch8.addConstraint(Sketcher.Constraint("Diameter", 4, 2.5))
sketch8.addConstraint(Sketcher.Constraint("DistanceX", 0, 2, 0, 1, 5.0))
sketch8.addConstraint(Sketcher.Constraint("DistanceX", 5, 2, 5, 1, 12.0))
sketch8.addConstraint(Sketcher.Constraint("Radius", 3, 3.125))
sketch8.addConstraint(Sketcher.Constraint("DistanceX", 3, 3, 6, 3, 93.0))
sketch8.addConstraint(Sketcher.Constraint("DistanceY", 14, 3, 3, 3, 55.0))
sketch8.addConstraint(Sketcher.Constraint("DistanceY", 13, 1, 13, 2, 2.75))
sketch8.setExpression("Constraints[47]", "Params.sketch8_diameter")
sketch8.setExpression("Constraints[48]", "Params.sketch8_width")
sketch8.setExpression("Constraints[49]", "Params.sketch8_width2")
sketch8.setExpression("Constraints[53]", "Params.sketch8_height")
pad3 = body.newObject("PartDesign::Pad", "Pad002")
pad3.Profile = sketch8
pad3.setExpression("Length", "Params.pad3_length")
pad3.Reversed = True

sketch9 = body.newObject("Sketcher::SketchObject", "Sketch008")
sketch9.AttachmentSupport = (doc.getObject("XZ_Plane"), [""])
sketch9.MapMode = "FlatFace"
sketch9.AttachmentOffset = App.Placement(V(0, 0, 11), App.Rotation())
sketch9.addGeometry(Part.LineSegment(V(-51.5, 30.625, 0), V(-46.5, 30.625, 0)), False)
sketch9.addGeometry(Part.ArcOfCircle(Part.Circle(V(-46.5, 33.5, 0), V(0, 0, 1), 2.875), math.radians(-90), math.radians(90)), False)
sketch9.addGeometry(Part.LineSegment(V(-46.5, 36.375, 0), V(-51.5, 36.375, 0)), False)
sketch9.addGeometry(Part.ArcOfCircle(Part.Circle(V(-51.5, 33.5, 0), V(0, 0, 1), 2.875), math.radians(90), math.radians(270)), False)
sketch9.addGeometry(Part.Circle(V(-46.5, 33.5, 0), V(0, 0, 1), 1.25), False)
sketch9.addGeometry(Part.LineSegment(V(58.5, 36.375, 0), V(50.5, 36.375, 0)), False)
sketch9.addGeometry(Part.ArcOfCircle(Part.Circle(V(50.5, 33.5, 0), V(0, 0, 1), 2.875), math.radians(90), math.radians(270)), False)
sketch9.addGeometry(Part.LineSegment(V(50.5, 30.625, 0), V(58.5, 30.625, 0)), False)
sketch9.addGeometry(Part.ArcOfCircle(Part.Circle(V(58.5, 33.5, 0), V(0, 0, 1), 2.875), math.radians(-90), math.radians(90)), False)
sketch9.addGeometry(Part.Circle(V(50.5, 33.5, 0), V(0, 0, 1), 1.25), False)
sketch9.addGeometry(Part.LineSegment(V(-51.5, 63.625, 0), V(-46.5, 63.625, 0)), False)
sketch9.addGeometry(Part.ArcOfCircle(Part.Circle(V(-46.5, 66.5, 0), V(0, 0, 1), 2.875), math.radians(-90), math.radians(0)), False)
sketch9.addGeometry(Part.LineSegment(V(-43.625, 66.5, 0), V(-43.625, 70.75, 0)), False)
sketch9.addGeometry(Part.LineSegment(V(-43.625, 70.75, 0), V(-51.5, 70.75, 0)), False)
sketch9.addGeometry(Part.LineSegment(V(-51.5, 70.75, 0), V(-51.5, 63.625, 0)), False)
sketch9.addGeometry(Part.Circle(V(-46.5, 66.5, 0), V(0, 0, 1), 1.25), False)
sketch9.addGeometry(Part.LineSegment(V(47.625, 70.75, 0), V(47.625, 66.5, 0)), False)
sketch9.addGeometry(Part.ArcOfCircle(Part.Circle(V(50.5, 66.5, 0), V(0, 0, 1), 2.875), math.radians(180), math.radians(270)), False)
sketch9.addGeometry(Part.LineSegment(V(50.5, 63.625, 0), V(58.5, 63.625, 0)), False)
sketch9.addGeometry(Part.LineSegment(V(58.5, 63.625, 0), V(58.5, 70.75, 0)), False)
sketch9.addGeometry(Part.LineSegment(V(58.5, 70.75, 0), V(47.625, 70.75, 0)), False)
sketch9.addGeometry(Part.Circle(V(50.5, 66.5, 0), V(0, 0, 1), 1.25), False)
sketch9.addConstraint(Sketcher.Constraint("Tangent", 0, 2, 1, 1))
sketch9.addConstraint(Sketcher.Constraint("Tangent", 1, 2, 2, 1))
sketch9.addConstraint(Sketcher.Constraint("Tangent", 2, 2, 3, 1))
sketch9.addConstraint(Sketcher.Constraint("Tangent", 3, 2, 0, 1))
sketch9.addConstraint(Sketcher.Constraint("Tangent", 5, 2, 6, 1))
sketch9.addConstraint(Sketcher.Constraint("Tangent", 6, 2, 7, 1))
sketch9.addConstraint(Sketcher.Constraint("Tangent", 7, 2, 8, 1))
sketch9.addConstraint(Sketcher.Constraint("Tangent", 8, 2, 5, 1))
sketch9.addConstraint(Sketcher.Constraint("Tangent", 10, 2, 11, 1))
sketch9.addConstraint(Sketcher.Constraint("Tangent", 11, 2, 12, 1))
sketch9.addConstraint(Sketcher.Constraint("Coincident", 12, 2, 13, 1))
sketch9.addConstraint(Sketcher.Constraint("Coincident", 13, 2, 14, 1))
sketch9.addConstraint(Sketcher.Constraint("Coincident", 14, 2, 10, 1))
sketch9.addConstraint(Sketcher.Constraint("Tangent", 16, 2, 17, 1))
sketch9.addConstraint(Sketcher.Constraint("Tangent", 17, 2, 18, 1))
sketch9.addConstraint(Sketcher.Constraint("Coincident", 18, 2, 19, 1))
sketch9.addConstraint(Sketcher.Constraint("Coincident", 19, 2, 20, 1))
sketch9.addConstraint(Sketcher.Constraint("Coincident", 20, 2, 16, 1))
sketch9.addConstraint(Sketcher.Constraint("Horizontal", 0))
sketch9.addConstraint(Sketcher.Constraint("Horizontal", 2))
sketch9.addConstraint(Sketcher.Constraint("Horizontal", 5))
sketch9.addConstraint(Sketcher.Constraint("Horizontal", 7))
sketch9.addConstraint(Sketcher.Constraint("Horizontal", 10))
sketch9.addConstraint(Sketcher.Constraint("Vertical", 12))
sketch9.addConstraint(Sketcher.Constraint("Horizontal", 13))
sketch9.addConstraint(Sketcher.Constraint("Vertical", 14))
sketch9.addConstraint(Sketcher.Constraint("Vertical", 16))
sketch9.addConstraint(Sketcher.Constraint("Horizontal", 18))
sketch9.addConstraint(Sketcher.Constraint("Vertical", 19))
sketch9.addConstraint(Sketcher.Constraint("Horizontal", 20))
sketch9.addConstraint(Sketcher.Constraint("Coincident", 4, 3, 1, 3))
sketch9.addConstraint(Sketcher.Constraint("Coincident", 9, 3, 6, 3))
sketch9.addConstraint(Sketcher.Constraint("Coincident", 15, 3, 11, 3))
sketch9.addConstraint(Sketcher.Constraint("Coincident", 21, 3, 17, 3))
sketch9.addConstraint(Sketcher.Constraint("Equal", 3, 6))
sketch9.addConstraint(Sketcher.Constraint("Equal", 4, 9))
sketch9.addConstraint(Sketcher.Constraint("Equal", 8, 11))
sketch9.addConstraint(Sketcher.Constraint("Equal", 9, 15))
sketch9.addConstraint(Sketcher.Constraint("Equal", 11, 17))
sketch9.addConstraint(Sketcher.Constraint("Equal", 15, 21))
sketch9.addConstraint(Sketcher.Constraint("Horizontal", 4, 3, 6, 3))
sketch9.addConstraint(Sketcher.Constraint("Horizontal", 15, 3, 17, 3))
sketch9.addConstraint(Sketcher.Constraint("Horizontal", 13, 2, 19, 2))
sketch9.addConstraint(Sketcher.Constraint("Vertical", 4, 3, 11, 3))
sketch9.addConstraint(Sketcher.Constraint("Vertical", 9, 3, 17, 3))
sketch9.addConstraint(Sketcher.Constraint("Vertical", 3, 2, 13, 2))
sketch9.addConstraint(Sketcher.Constraint("Vertical", 8, 2, 18, 2))
sketch9.addConstraint(Sketcher.Constraint("Diameter", 4, 2.5))
sketch9.addConstraint(Sketcher.Constraint("DistanceX", 0, 1, 0, 2, 5.0))
sketch9.addConstraint(Sketcher.Constraint("DistanceX", 5, 2, 5, 1, 8.0))
sketch9.addConstraint(Sketcher.Constraint("Radius", 1, 2.875))
sketch9.addConstraint(Sketcher.Constraint("DistanceX", 1, 3, 6, 3, 97.0))
sketch9.addConstraint(Sketcher.Constraint("DistanceY", 1, 3, 11, 3, 33.0))
sketch9.addConstraint(Sketcher.Constraint("DistanceY", 12, 1, 12, 2, 4.25))
sketch9.addConstraint(Sketcher.Constraint("DistanceX", 1, 3, -1, 1, 46.5))
sketch9.addConstraint(Sketcher.Constraint("DistanceY", -1, 1, 1, 3, 33.5))
sketch9.setExpression("Constraints[47]", "Params.sketch9_diameter")
sketch9.setExpression("Constraints[48]", "Params.sketch9_width")
sketch9.setExpression("Constraints[49]", "Params.sketch9_width2")
sketch9.setExpression("Constraints[53]", "Params.sketch9_height")
pad4 = body.newObject("PartDesign::Pad", "Pad003")
pad4.Profile = sketch9
pad4.setExpression("Length", "Params.pad4_length")
pad4.Reversed = True

sketch10 = body.newObject("Sketcher::SketchObject", "Sketch009")
sketch10.AttachmentSupport = (doc.getObject("XZ_Plane"), [""])
sketch10.MapMode = "FlatFace"
add_polygon(sketch10, [(-43.375, 27.5), (-43.625, 33.5), (-46.5, 30.625)])
sketch10.addGeometry(Part.LineSegment(V(50.5, 30.625, 0), V(47.625, 33.5, 0)), False)
sketch10.addGeometry(Part.ArcOfCircle(Part.Circle(V(44.389706, 33.5, 0), V(0, 0, 1), 3.235294), math.radians(-70.622427), math.radians(0)), False)
sketch10.addGeometry(Part.LineSegment(V(45.46315, 30.447977, 0), V(50.5, 30.625, 0)), False)
sketch10.addConstraint(Sketcher.Constraint("Coincident", 3, 2, 4, 2))
sketch10.addConstraint(Sketcher.Constraint("Coincident", 4, 1, 5, 1))
sketch10.addConstraint(Sketcher.Constraint("Coincident", 5, 2, 3, 1))
sketch10.addConstraint(Sketcher.Constraint("Perpendicular", 1, 2))
sketch10.addConstraint(Sketcher.Constraint("Parallel", 2, 3))
sketch10.addConstraint(Sketcher.Constraint("Horizontal", 4, 3, 0, 2))
sketch10.addConstraint(Sketcher.Constraint("Horizontal", 0, 2, 3, 2))
sketch10.addConstraint(Sketcher.Constraint("Horizontal", 1, 2, 5, 2))
sketch10.addConstraint(Sketcher.Constraint("Equal", 1, 3))
sketch10.addConstraint(Sketcher.Constraint("DistanceY", 2, 2, 0, 2, 6.0))
sketch10.addConstraint(Sketcher.Constraint("DistanceX", 2, 2, 3, 2, 91.0))
sketch10.addConstraint(Sketcher.Constraint("DistanceY", -1, 1, 4, 3, 33.5))
sketch10.addConstraint(Sketcher.Constraint("DistanceX", 1, 2, -1, 1, 46.5))
sketch10.addConstraint(Sketcher.Constraint("DistanceX", 0, 2, 2, 2, 0.25))
sketch10.addConstraint(Sketcher.Constraint("Radius", 4, 3.235294))
sketch10.addConstraint(Sketcher.Constraint("Distance", 5, 5.03996))
pad5 = body.newObject("PartDesign::Pad", "Pad004")
pad5.Profile = sketch10
pad5.setExpression("Length", "Params.pad5_length")

doc.recompute()
